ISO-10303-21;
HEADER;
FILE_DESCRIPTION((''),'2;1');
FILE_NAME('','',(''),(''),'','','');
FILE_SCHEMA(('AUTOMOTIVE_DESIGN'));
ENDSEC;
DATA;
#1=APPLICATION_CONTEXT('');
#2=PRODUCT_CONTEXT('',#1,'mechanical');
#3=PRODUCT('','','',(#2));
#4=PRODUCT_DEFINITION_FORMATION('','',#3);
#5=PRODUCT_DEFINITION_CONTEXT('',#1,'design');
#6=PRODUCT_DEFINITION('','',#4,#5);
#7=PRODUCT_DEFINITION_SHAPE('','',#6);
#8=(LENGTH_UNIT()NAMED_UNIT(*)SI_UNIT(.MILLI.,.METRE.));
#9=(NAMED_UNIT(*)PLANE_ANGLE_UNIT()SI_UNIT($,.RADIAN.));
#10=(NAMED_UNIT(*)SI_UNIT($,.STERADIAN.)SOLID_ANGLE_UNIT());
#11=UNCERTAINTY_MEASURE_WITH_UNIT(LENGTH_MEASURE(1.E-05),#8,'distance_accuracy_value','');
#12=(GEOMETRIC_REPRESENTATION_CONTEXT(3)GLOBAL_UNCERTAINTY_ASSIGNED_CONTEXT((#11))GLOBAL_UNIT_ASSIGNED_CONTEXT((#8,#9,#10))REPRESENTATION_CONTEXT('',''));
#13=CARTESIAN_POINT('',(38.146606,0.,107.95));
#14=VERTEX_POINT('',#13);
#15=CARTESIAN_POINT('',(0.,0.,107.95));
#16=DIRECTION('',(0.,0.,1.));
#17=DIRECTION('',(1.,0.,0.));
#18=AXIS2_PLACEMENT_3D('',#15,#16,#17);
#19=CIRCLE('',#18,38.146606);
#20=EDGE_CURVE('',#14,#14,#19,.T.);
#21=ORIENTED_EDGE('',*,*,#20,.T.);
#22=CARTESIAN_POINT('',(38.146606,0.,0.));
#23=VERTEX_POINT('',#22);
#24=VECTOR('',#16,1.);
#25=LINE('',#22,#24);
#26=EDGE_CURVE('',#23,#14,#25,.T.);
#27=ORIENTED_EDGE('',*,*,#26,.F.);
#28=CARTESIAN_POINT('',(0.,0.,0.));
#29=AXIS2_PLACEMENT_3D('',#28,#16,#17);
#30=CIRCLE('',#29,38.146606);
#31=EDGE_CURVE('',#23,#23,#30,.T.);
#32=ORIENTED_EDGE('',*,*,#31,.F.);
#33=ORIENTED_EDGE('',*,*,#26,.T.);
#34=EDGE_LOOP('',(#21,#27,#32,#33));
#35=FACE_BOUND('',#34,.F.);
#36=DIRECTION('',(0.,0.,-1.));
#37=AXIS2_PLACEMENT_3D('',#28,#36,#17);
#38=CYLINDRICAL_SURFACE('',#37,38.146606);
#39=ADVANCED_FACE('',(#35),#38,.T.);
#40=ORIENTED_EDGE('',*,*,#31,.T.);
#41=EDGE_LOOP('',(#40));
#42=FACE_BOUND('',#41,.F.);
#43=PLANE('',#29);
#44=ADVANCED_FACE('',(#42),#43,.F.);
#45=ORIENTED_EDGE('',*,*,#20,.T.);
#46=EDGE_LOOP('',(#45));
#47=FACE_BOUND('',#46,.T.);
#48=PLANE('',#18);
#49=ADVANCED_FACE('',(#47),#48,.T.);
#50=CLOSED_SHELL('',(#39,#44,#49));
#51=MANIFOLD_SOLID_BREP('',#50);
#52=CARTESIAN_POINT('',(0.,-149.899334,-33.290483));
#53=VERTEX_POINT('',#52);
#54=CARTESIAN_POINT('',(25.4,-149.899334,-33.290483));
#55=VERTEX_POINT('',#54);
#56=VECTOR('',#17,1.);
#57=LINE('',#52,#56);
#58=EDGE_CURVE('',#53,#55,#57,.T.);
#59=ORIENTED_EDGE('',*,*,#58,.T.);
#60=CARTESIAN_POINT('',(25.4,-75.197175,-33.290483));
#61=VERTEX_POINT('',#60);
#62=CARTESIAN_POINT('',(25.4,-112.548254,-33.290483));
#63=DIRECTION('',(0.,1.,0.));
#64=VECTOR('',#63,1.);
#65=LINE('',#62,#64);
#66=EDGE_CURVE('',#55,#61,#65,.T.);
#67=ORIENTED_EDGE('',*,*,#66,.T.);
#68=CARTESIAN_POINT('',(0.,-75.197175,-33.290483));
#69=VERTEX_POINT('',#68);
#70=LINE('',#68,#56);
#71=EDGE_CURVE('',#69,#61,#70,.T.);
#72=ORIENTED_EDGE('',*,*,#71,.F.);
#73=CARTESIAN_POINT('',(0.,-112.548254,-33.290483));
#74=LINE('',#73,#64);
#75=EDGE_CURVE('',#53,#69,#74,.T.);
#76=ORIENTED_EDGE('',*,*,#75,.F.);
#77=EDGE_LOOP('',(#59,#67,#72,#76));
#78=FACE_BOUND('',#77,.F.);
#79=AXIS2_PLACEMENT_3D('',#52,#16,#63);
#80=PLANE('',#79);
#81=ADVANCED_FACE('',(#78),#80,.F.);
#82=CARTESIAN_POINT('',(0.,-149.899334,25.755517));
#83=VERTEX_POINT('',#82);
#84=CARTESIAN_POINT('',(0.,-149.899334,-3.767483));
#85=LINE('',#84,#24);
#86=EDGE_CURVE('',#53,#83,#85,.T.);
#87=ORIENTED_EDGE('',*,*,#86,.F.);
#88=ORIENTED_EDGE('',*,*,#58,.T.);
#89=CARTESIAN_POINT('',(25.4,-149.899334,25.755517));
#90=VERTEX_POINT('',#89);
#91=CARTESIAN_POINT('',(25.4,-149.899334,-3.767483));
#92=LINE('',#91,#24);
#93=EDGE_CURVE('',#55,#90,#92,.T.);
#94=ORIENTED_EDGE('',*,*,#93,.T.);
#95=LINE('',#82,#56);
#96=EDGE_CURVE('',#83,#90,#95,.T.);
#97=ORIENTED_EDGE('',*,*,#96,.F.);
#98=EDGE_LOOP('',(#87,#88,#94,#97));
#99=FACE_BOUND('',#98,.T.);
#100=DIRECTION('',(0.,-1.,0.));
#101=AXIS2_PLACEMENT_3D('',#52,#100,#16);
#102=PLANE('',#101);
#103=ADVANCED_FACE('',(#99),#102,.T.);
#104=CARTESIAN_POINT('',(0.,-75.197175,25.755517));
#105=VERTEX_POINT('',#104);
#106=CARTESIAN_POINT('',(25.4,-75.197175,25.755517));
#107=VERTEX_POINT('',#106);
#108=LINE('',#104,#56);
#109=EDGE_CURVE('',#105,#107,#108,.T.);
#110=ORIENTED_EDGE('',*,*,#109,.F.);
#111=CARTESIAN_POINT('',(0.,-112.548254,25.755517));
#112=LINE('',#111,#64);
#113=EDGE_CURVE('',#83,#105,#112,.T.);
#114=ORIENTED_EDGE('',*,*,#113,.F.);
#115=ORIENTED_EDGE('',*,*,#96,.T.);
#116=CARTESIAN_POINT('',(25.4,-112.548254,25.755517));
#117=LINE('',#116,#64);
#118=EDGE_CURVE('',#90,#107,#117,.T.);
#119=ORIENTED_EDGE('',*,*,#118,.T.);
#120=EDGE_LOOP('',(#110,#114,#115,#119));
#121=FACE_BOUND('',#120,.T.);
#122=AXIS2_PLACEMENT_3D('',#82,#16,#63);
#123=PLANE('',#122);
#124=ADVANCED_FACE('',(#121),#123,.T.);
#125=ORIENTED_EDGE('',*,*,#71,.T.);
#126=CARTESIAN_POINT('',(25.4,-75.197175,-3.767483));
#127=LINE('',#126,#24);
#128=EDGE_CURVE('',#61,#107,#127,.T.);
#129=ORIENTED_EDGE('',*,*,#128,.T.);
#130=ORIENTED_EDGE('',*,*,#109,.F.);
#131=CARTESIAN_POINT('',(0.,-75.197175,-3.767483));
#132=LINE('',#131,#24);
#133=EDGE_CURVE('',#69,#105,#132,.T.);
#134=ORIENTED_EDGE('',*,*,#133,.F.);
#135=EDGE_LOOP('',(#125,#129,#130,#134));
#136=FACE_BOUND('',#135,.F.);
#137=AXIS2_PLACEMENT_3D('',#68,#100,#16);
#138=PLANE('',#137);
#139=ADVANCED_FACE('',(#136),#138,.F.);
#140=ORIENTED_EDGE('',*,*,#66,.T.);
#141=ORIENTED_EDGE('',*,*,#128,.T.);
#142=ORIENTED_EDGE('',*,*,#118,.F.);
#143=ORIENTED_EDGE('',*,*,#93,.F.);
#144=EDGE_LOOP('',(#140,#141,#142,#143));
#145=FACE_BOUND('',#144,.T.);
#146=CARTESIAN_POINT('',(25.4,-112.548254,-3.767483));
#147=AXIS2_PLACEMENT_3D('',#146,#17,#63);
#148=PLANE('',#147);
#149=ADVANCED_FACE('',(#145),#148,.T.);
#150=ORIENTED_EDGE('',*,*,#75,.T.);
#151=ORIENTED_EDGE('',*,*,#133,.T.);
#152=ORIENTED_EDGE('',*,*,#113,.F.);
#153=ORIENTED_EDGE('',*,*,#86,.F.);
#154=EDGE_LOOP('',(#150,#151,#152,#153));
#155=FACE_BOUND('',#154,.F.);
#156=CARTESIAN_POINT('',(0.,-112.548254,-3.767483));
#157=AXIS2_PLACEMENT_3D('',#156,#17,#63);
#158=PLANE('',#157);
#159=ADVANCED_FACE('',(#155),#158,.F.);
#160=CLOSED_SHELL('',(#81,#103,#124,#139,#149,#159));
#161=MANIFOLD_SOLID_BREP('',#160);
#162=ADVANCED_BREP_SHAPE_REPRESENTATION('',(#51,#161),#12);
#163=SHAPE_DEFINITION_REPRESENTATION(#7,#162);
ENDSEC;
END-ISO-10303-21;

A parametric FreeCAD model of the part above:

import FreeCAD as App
import Part
import Sketcher
from FreeCAD import Vector
Q = App.Units.Quantity

doc = App.newDocument("Part")
body = doc.addObject("PartDesign::Body", "Body")

sketch1 = doc.addObject("Sketcher::SketchObject", "Sketch")
body.addObject(sketch1)
sketch1.AttachmentSupport = (doc.XY_Plane, [""])
sketch1.MapMode = "FlatFace"
sketch1.addGeometry(Part.Circle(Vector(0, 0, 0), Vector(0, 0, 1), 38.146606), False)
sketch1.addConstraint([
    Sketcher.Constraint("Coincident", 0, 3, -1, 1),
    Sketcher.Constraint("Diameter", 0, 76.293212),
])
pad1 = doc.addObject("PartDesign::Pad", "Pad")
body.addObject(pad1)
pad1.Profile = sketch1
pad1.Length = Q("4.25 in")
body2 = doc.addObject("PartDesign::Body", "Body001")

sketch2 = doc.addObject("Sketcher::SketchObject", "Sketch001")
body2.addObject(sketch2)
sketch2.AttachmentSupport = (doc.getObject("YZ_Plane001"), [""])
sketch2.MapMode = "FlatFace"
sketch2.addGeometry([
    Part.LineSegment(Vector(-149.899334, 25.755517, 0), Vector(-149.899334, -33.290483, 0)),
    Part.LineSegment(Vector(-149.899334, -33.290483, 0), Vector(-75.197175, -33.290483, 0)),
    Part.LineSegment(Vector(-75.197175, -33.290483, 0), Vector(-75.197175, 25.755517, 0)),
    Part.LineSegment(Vector(-75.197175, 25.755517, 0), Vector(-149.899334, 25.755517, 0)),
], False)
sketch2.addConstraint([
    Sketcher.Constraint("Coincident", 0, 2, 1, 1),
    Sketcher.Constraint("Coincident", 1, 2, 2, 1),
    Sketcher.Constraint("Coincident", 2, 2, 3, 1),
    Sketcher.Constraint("Coincident", 3, 2, 0, 1),
    Sketcher.Constraint("Vertical", 0),
    Sketcher.Constraint("Horizontal", 1),
    Sketcher.Constraint("Vertical", 2),
    Sketcher.Constraint("Horizontal", 3),
    Sketcher.Constraint("DistanceY", 0, 2, 0, 1, 59.046),
    Sketcher.Constraint("DistanceX", 1, 1, 1, 2, 74.702159),
    Sketcher.Constraint("DistanceX", 0, 2, -1, 1, 149.899334),
    Sketcher.Constraint("DistanceY", 0, 2, -1, 1, 33.290483),
])
pad2 = doc.addObject("PartDesign::Pad", "Pad001")
body2.addObject(pad2)
pad2.Profile = sketch2
pad2.Length = Q("1 in")

doc.recompute()
